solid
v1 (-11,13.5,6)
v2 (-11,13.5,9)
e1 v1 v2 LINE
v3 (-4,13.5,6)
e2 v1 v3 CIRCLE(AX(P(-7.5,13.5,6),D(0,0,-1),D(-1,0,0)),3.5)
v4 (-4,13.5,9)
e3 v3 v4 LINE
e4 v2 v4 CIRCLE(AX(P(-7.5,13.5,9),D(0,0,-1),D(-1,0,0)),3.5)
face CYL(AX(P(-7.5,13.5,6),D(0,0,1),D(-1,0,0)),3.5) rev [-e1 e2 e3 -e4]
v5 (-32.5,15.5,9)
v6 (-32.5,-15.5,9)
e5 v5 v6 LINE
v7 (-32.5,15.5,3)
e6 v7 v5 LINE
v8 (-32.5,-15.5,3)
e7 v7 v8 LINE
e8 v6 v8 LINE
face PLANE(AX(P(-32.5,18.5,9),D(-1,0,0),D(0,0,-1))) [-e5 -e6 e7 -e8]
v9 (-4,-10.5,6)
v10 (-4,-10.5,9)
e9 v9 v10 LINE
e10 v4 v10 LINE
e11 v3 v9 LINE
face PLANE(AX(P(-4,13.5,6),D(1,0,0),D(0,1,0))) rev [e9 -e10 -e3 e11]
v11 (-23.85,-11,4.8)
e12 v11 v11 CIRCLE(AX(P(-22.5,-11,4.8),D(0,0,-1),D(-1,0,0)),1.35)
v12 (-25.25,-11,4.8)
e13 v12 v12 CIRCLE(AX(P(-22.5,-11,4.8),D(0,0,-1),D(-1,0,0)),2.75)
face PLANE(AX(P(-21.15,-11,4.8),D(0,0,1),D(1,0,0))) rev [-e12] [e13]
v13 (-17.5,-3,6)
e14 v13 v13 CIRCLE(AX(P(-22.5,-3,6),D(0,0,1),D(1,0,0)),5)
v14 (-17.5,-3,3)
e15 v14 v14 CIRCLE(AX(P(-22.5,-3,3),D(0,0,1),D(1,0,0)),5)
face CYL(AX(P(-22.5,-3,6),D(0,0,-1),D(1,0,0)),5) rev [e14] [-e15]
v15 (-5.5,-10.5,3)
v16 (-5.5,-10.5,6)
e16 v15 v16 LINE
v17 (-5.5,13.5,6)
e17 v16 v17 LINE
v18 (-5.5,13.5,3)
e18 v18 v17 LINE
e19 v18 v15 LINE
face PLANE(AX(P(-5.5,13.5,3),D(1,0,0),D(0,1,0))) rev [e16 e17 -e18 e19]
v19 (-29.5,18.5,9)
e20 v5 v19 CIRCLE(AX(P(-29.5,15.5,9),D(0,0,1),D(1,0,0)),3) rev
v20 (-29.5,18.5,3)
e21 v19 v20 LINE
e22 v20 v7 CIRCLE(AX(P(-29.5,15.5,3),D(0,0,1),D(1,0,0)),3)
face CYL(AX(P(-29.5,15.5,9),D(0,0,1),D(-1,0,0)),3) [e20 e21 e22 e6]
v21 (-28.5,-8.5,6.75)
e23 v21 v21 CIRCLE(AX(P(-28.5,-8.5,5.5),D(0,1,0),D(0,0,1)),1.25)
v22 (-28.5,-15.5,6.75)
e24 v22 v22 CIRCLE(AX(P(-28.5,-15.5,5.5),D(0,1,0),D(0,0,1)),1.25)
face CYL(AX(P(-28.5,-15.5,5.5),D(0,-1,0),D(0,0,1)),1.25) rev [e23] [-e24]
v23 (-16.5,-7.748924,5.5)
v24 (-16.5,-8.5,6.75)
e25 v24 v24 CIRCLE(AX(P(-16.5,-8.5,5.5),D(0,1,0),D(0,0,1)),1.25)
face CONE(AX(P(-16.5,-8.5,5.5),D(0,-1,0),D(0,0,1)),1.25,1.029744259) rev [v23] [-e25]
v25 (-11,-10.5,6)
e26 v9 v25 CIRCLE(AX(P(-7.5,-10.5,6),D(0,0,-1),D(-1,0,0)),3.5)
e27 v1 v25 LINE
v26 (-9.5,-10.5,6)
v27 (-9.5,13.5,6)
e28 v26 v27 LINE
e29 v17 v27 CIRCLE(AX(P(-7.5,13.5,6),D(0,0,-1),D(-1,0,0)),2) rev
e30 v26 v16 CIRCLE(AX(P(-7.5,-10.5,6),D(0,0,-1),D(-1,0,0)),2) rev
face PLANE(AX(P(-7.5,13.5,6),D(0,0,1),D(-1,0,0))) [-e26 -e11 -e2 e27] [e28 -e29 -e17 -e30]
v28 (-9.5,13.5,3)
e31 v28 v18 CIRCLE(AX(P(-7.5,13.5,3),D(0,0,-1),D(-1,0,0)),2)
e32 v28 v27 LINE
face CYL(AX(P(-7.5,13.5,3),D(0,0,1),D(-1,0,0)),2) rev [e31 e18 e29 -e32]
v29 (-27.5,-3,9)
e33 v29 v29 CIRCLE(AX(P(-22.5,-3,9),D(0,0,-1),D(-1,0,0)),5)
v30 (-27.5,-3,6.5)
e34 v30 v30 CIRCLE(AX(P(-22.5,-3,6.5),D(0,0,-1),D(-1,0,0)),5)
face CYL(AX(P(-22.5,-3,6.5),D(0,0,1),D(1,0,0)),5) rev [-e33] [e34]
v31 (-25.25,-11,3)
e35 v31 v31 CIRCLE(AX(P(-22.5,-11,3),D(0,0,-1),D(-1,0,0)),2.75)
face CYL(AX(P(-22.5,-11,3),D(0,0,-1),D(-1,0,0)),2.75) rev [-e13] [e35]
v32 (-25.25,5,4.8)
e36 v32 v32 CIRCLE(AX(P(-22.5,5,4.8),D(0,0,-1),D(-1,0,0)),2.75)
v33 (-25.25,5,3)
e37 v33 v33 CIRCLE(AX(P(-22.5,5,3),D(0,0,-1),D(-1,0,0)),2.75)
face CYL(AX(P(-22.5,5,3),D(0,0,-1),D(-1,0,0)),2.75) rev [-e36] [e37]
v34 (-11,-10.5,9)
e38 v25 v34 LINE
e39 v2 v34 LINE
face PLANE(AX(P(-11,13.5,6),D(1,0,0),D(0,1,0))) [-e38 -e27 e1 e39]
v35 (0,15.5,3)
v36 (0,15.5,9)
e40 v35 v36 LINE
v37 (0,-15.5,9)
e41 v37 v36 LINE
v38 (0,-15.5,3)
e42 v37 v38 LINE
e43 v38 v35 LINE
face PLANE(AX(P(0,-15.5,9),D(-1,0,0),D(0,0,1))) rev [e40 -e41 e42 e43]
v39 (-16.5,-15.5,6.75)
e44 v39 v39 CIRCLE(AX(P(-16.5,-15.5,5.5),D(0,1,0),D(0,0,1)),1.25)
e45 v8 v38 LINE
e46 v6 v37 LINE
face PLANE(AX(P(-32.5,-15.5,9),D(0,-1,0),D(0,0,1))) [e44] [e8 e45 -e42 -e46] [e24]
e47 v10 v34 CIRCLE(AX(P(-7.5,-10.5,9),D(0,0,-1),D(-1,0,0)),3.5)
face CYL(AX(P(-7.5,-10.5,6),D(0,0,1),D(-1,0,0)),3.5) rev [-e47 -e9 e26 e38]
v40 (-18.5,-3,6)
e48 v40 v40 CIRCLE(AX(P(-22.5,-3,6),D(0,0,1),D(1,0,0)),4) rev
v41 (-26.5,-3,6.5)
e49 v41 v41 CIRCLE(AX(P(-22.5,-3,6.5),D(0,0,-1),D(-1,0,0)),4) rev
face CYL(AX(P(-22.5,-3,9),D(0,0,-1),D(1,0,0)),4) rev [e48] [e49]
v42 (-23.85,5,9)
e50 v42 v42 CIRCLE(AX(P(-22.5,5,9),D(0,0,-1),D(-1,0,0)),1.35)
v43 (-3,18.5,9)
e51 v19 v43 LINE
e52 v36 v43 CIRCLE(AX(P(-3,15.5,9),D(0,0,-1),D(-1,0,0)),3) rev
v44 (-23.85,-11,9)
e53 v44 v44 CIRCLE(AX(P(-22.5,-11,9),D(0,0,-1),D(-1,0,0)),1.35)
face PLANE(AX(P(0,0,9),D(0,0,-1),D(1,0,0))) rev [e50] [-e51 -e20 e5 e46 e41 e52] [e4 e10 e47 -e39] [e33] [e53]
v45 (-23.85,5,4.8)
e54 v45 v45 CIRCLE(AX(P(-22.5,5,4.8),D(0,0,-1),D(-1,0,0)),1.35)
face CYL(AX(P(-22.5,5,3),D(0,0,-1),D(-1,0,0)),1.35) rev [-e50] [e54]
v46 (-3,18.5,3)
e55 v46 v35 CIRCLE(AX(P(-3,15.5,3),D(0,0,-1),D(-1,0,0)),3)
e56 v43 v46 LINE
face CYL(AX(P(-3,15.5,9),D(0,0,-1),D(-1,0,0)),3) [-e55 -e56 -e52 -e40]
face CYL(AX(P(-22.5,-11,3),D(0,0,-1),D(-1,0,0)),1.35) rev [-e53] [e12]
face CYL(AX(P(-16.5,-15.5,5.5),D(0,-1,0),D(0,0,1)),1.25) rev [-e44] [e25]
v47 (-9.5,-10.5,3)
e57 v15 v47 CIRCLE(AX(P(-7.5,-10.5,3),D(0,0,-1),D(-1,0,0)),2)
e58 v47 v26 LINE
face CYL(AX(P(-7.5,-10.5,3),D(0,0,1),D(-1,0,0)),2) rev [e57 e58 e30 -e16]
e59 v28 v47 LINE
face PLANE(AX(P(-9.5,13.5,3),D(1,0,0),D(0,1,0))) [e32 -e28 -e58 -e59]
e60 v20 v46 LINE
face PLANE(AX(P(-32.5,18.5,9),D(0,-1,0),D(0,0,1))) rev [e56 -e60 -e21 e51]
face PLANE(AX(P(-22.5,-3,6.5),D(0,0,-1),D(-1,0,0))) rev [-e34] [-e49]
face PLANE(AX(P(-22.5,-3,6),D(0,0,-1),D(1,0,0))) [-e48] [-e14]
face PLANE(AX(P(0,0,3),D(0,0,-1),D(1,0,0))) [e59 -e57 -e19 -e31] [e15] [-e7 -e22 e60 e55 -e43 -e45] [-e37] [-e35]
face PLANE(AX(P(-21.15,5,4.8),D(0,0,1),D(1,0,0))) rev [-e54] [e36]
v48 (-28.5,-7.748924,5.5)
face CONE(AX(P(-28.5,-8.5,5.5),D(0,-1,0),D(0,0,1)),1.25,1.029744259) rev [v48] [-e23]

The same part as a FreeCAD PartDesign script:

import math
import FreeCAD as App
import Part
import Sketcher
Q = App.Units.Quantity


def edges_at(feature, points):
    """Names of the edges that pass closest to the given points."""
    edges = feature.Shape.Edges
    near = lambda p: min(range(len(edges)), key=lambda i: edges[i].distToShape(Part.Vertex(*p))[0])
    return sorted({f"Edge{near(p) + 1}" for p in points})


def add_polygon(sketch, points):
    """Adds a closed chain of lines whose ends are joined by coincident constraints."""
    first, n = sketch.GeometryCount, len(points)
    for a, b in zip(points, points[1:] + points[:1]):
        sketch.addGeometry(Part.LineSegment(App.Vector(*a, 0), App.Vector(*b, 0)), False)
    for i in range(n):
        sketch.addConstraint(Sketcher.Constraint("Coincident", first + i, 2, first + (i + 1) % n, 1))

doc = App.newDocument("Part")
body = doc.addObject("PartDesign::Body", "Body")

# Sketch on XY plane
sketch1 = doc.addObject("Sketcher::SketchObject", "Sketch")
body.addObject(sketch1)
sketch1.AttachmentSupport = (doc.XY_Plane, [""])
sketch1.MapMode = "FlatFace"
add_polygon(sketch1, [(-32.5, 18.5), (-32.5, -15.5), (32.5, -15.5), (32.5, 18.5)])  # lines 0-3
sketch1.addGeometry(Part.Circle(App.Vector(-22.5, -3, 0), App.Vector(0, 0, 1), 4), False)  # 4
sketch1.addGeometry(Part.Circle(App.Vector(20.5, 0, 0), App.Vector(0, 0, 1), 9), False)  # 5
sketch1.addConstraint([
    Sketcher.Constraint("Vertical", 0),
    Sketcher.Constraint("Horizontal", 1),
    Sketcher.Constraint("Vertical", 2),
    Sketcher.Constraint("Horizontal", 3),
    Sketcher.Constraint("PointOnObject", 5, 3, -1),
    Sketcher.Constraint("Diameter", 4, Q("8 mm")),
    Sketcher.Constraint("Diameter", 5, Q("18 mm")),
    Sketcher.Constraint("DistanceX", 1, 1, 1, 2, Q("65 mm")),
    Sketcher.Constraint("DistanceY", 0, 2, 0, 1, Q("34 mm")),
    Sketcher.Constraint("DistanceY", 4, 3, -1, 1, Q("3 mm")),
    Sketcher.Constraint("DistanceX", 4, 3, 5, 3, Q("43 mm")),
    Sketcher.Constraint("DistanceX", 0, 2, 4, 3, Q("10 mm")),
    Sketcher.Constraint("DistanceX", 4, 3, -1, 1, Q("22.5 mm")),
    Sketcher.Constraint("DistanceY", 0, 2, -1, 1, Q("15.5 mm")),
])
pad1 = doc.addObject("PartDesign::Pad", "Pad")
body.addObject(pad1)
pad1.Profile = sketch1
pad1.Length = 6
pad1.Midplane = True

# Sketch on XY plane
sketch2 = doc.addObject("Sketcher::SketchObject", "Sketch001")
body.addObject(sketch2)
sketch2.AttachmentSupport = (doc.XY_Plane, [""])
sketch2.MapMode = "FlatFace"
sketch2.AttachmentOffset = App.Placement(App.Vector(0, 0, 3), App.Rotation())
sketch2.addGeometry(Part.Circle(App.Vector(20, 0, 0), App.Vector(0, 0, 1), 10), False)
sketch2.addConstraint([
    Sketcher.Constraint("PointOnObject", 0, 3, -1),
    Sketcher.Constraint("Diameter", 0, Q("21 mm")),
    Sketcher.Constraint("DistanceX", -1, 1, 0, 3, Q("20.5 mm")),
])
pocket1 = doc.addObject("PartDesign::Pocket", "Pocket")
body.addObject(pocket1)
pocket1.Profile = sketch2
pocket1.Length = 5

# Sketch on XY plane
sketch3 = doc.addObject("Sketcher::SketchObject", "Sketch002")
body.addObject(sketch3)
sketch3.AttachmentSupport = (doc.XY_Plane, [""])
sketch3.MapMode = "FlatFace"
sketch3.AttachmentOffset = App.Placement(App.Vector(0, 0, 3), App.Rotation())
sketch3.addGeometry(Part.Circle(App.Vector(-22, -3, 0), App.Vector(0, 0, 1), 5), False)
sketch3.addConstraint([
    Sketcher.Constraint("Diameter", 0, Q("10 mm")),
    Sketcher.Constraint("DistanceY", 0, 3, -1, 1, Q("3 mm")),
    Sketcher.Constraint("DistanceX", 0, 3, -1, 1, Q("22.5 mm")),
])
pocket2 = doc.addObject("PartDesign::Pocket", "Pocket001")
body.addObject(pocket2)
pocket2.Profile = sketch3
pocket2.Length = 3

# Sketch on XY plane
sketch4 = doc.addObject("Sketcher::SketchObject", "Sketch003")
body.addObject(sketch4)
sketch4.AttachmentSupport = (doc.XY_Plane, [""])
sketch4.MapMode = "FlatFace"
sketch4.AttachmentOffset = App.Placement(App.Vector(0, 0, -3), App.Rotation())
sketch4.addGeometry([
    Part.LineSegment(App.Vector(-9.5, -10.5, 0), App.Vector(-9.5, 13.5, 0)),
    Part.ArcOfCircle(Part.Circle(App.Vector(-7.5, 13.5, 0), App.Vector(0, 0, 1), 2), math.radians(0), math.radians(180)),
    Part.LineSegment(App.Vector(-5.5, 13.5, 0), App.Vector(-5.5, -10.5, 0)),
    Part.ArcOfCircle(Part.Circle(App.Vector(-7.5, -10.5, 0), App.Vector(0, 0, 1), 2), math.radians(180), math.radians(360)),
], False)
sketch4.addConstraint([
    Sketcher.Constraint("Tangent", 0, 2, 1, 2),
    Sketcher.Constraint("Tangent", 1, 1, 2, 1),
    Sketcher.Constraint("Tangent", 2, 2, 3, 2),
    Sketcher.Constraint("Tangent", 3, 1, 0, 1),
    Sketcher.Constraint("Vertical", 0),
    Sketcher.Constraint("Vertical", 2),
    Sketcher.Constraint("Radius", 1, Q("2 mm")),
    Sketcher.Constraint("DistanceY", 0, 1, 0, 2, Q("24 mm")),
    Sketcher.Constraint("DistanceX", 1, 3, -1, 1, Q("7.5 mm")),
    Sketcher.Constraint("DistanceY", -1, 1, 1, 3, Q("13.5 mm")),
])
pocket3 = doc.addObject("PartDesign::Pocket", "Pocket002")
body.addObject(pocket3)
pocket3.Profile = sketch4
pocket3.Type = "ThroughAll"
pocket3.Reversed = True

# Sketch on XY plane
sketch5 = doc.addObject("Sketcher::SketchObject", "Sketch004")
body.addObject(sketch5)
sketch5.AttachmentSupport = (doc.XY_Plane, [""])
sketch5.MapMode = "FlatFace"
sketch5.AttachmentOffset = App.Placement(App.Vector(0, 0, -3), App.Rotation())
sketch5.addGeometry([
    Part.LineSegment(App.Vector(-11, -10.5, 0), App.Vector(-11, 13.5, 0)),
    Part.ArcOfCircle(Part.Circle(App.Vector(-7.5, 13.5, 0), App.Vector(0, 0, 1), 3.5), math.radians(0), math.radians(180)),
    Part.LineSegment(App.Vector(-4, 13.5, 0), App.Vector(-4, -10.5, 0)),
    Part.ArcOfCircle(Part.Circle(App.Vector(-7.5, -10.5, 0), App.Vector(0, 0, 1), 3.5), math.radians(180), math.radians(360)),
], False)
sketch5.addConstraint([
    Sketcher.Constraint("Tangent", 0, 2, 1, 2),
    Sketcher.Constraint("Tangent", 1, 1, 2, 1),
    Sketcher.Constraint("Tangent", 2, 2, 3, 2),
    Sketcher.Constraint("Tangent", 3, 1, 0, 1),
    Sketcher.Constraint("Vertical", 0),
    Sketcher.Constraint("Vertical", 2),
    Sketcher.Constraint("Radius", 1, Q("3.5 mm")),
    Sketcher.Constraint("DistanceY", 0, 1, 0, 2, Q("24 mm")),
    Sketcher.Constraint("DistanceX", 0, 2, -1, 1, Q("11 mm")),
    Sketcher.Constraint("DistanceY", -1, 1, 1, 3, Q("13.5 mm")),
])
pocket4 = doc.addObject("PartDesign::Pocket", "Pocket003")
body.addObject(pocket4)
pocket4.Profile = sketch5
pocket4.Length = 3
pocket4.Reversed = True
doc.recompute()

fillet = doc.addObject("PartDesign::Fillet", "Fillet")
body.addObject(fillet)
fillet.Base = (pocket4, edges_at(pocket4, [(-32.5, 18.5, 0), (32.5, 18.5, 0)]))
fillet.Radius = 3

# Sketch on XZ plane
sketch6 = doc.addObject("Sketcher::SketchObject", "Sketch005")
body.addObject(sketch6)
sketch6.AttachmentSupport = (doc.XZ_Plane, [""])
sketch6.MapMode = "FlatFace"
sketch6.AttachmentOffset = App.Placement(App.Vector(0, 0, 15.5), App.Rotation())
sketch6.addGeometry([
    Part.Circle(App.Vector(26.5, 0.5, 0), App.Vector(0, 0, 1), 1.2),
    Part.Circle(App.Vector(-28.5, 0.5, 0), App.Vector(0, 0, 1), 1.2),
    Part.Circle(App.Vector(14.5, 0.5, 0), App.Vector(0, 0, 1), 1.2),
    Part.Circle(App.Vector(-16.5, 0.5, 0), App.Vector(0, 0, 1), 1.2),
], False)
sketch6.addConstraint([
    Sketcher.Constraint("Equal", 0, 1),
    Sketcher.Constraint("Equal", 1, 2),
    Sketcher.Constraint("Equal", 2, 3),
    Sketcher.Constraint("Horizontal", 0, 3, 1, 3),
    Sketcher.Constraint("Horizontal", 1, 3, 2, 3),
    Sketcher.Constraint("Horizontal", 2, 3, 3, 3),
    Sketcher.Constraint("Diameter", 0, Q("2.5 mm")),
    Sketcher.Constraint("DistanceX", 1, 3, 0, 3, Q("55 mm")),
    Sketcher.Constraint("DistanceX", 2, 3, 0, 3, Q("12 mm")),
    Sketcher.Constraint("DistanceX", 1, 3, 3, 3, Q("12 mm")),
    Sketcher.Constraint("DistanceX", -1, 1, 0, 3, Q("26.5 mm")),
    Sketcher.Constraint("DistanceY", -1, 1, 0, 3, Q("0.5 mm")),
])
doc.recompute()
hole = doc.addObject("PartDesign::Hole", "Hole")
body.addObject(hole)
hole.Profile = sketch6
hole.ThreadType = "None"
hole.Diameter = 2.5
hole.DepthType = "Dimension"
hole.Depth = 7
hole.DrillPoint = "Angled"
hole.DrillPointAngle = 118

# Sketch on XZ plane
sketch7 = doc.addObject("Sketcher::SketchObject", "Sketch006")
body.addObject(sketch7)
sketch7.AttachmentSupport = (doc.XZ_Plane, [""])
sketch7.MapMode = "FlatFace"
sketch7.AttachmentOffset = App.Placement(App.Vector(0, 0, -18.5), App.Rotation())
sketch7.addGeometry(Part.Circle(App.Vector(20.5, 0, 0), App.Vector(0, 0, 1), 1.2), False)
sketch7.addConstraint([
    Sketcher.Constraint("PointOnObject", 0, 3, -1),
    Sketcher.Constraint("Diameter", 0, Q("2.5 mm")),
    Sketcher.Constraint("DistanceX", -1, 1, 0, 3, Q("20.5 mm")),
])
doc.recompute()
hole2 = doc.addObject("PartDesign::Hole", "Hole001")
body.addObject(hole2)
hole2.Profile = sketch7
hole2.ThreadType = "None"
hole2.Diameter = 2.5
hole2.DepthType = "Dimension"
hole2.Depth = 7.5
hole2.DrillPoint = "Angled"
hole2.DrillPointAngle = 118
hole2.Reversed = True
body2 = doc.addObject("PartDesign::Body", "Body001")
doc.recompute()

mirroring = doc.addObject("Part::Mirroring", "Mirroring")
mirroring.Source = body
mirroring.Base = App.Vector(0, 0, 3)
mirroring.Normal = App.Vector(0, 0, 1)
body2.BaseFeature = mirroring
doc.recompute()

# Sketch on XY plane
sketch8 = doc.addObject("Sketcher::SketchObject", "Sketch007")
body2.addObject(sketch8)
sketch8.AttachmentSupport = (doc.getObject("XY_Plane001"), [""])
sketch8.MapMode = "FlatFace"
sketch8.AttachmentOffset = App.Placement(App.Vector(0, 0, 3), App.Rotation())
add_polygon(sketch8, [(41, 27), (41, -24), (-41, -24), (-41, 27)])  # lines 0-3
add_polygon(sketch8, [(-32, -16), (0, -16), (0, 18), (-32, 18)])  # lines 4-7
sketch8.addConstraint([
    Sketcher.Constraint("Vertical", 0),
    Sketcher.Constraint("Horizontal", 1),
    Sketcher.Constraint("Vertical", 2),
    Sketcher.Constraint("Horizontal", 3),
    Sketcher.Constraint("Horizontal", 4),
    Sketcher.Constraint("Vertical", 5),
    Sketcher.Constraint("Horizontal", 6),
    Sketcher.Constraint("Vertical", 7),
    Sketcher.Constraint("PointOnObject", 4, 2, -2),
    Sketcher.Constraint("DistanceY", 5, 1, 5, 2, Q("34 mm")),
    Sketcher.Constraint("DistanceX", 4, 1, 4, 2, Q("32.5 mm")),
    Sketcher.Constraint("DistanceX", 1, 2, 1, 1, Q("81.72 mm")),
    Sketcher.Constraint("DistanceY", 0, 2, 0, 1, Q("50.72 mm")),
    Sketcher.Constraint("DistanceY", 4, 2, -1, 1, Q("15.5 mm")),
    Sketcher.Constraint("DistanceX", -1, 1, 0, 2, Q("40.86 mm")),
    Sketcher.Constraint("DistanceY", 0, 2, -1, 1, Q("23.86 mm")),
])
pocket5 = doc.addObject("PartDesign::Pocket", "Pocket004")
body2.addObject(pocket5)
pocket5.Profile = sketch8
pocket5.Type = "ThroughAll"
pocket5.Reversed = True
doc.recompute()

fillet2 = doc.addObject("PartDesign::Fillet", "Fillet001")
body2.addObject(fillet2)
fillet2.Base = (pocket5, edges_at(pocket5, [(0, 18.5, 6)]))
fillet2.Radius = 3

# Sketch on XY plane
sketch9 = doc.addObject("Sketcher::SketchObject", "Sketch008")
body2.addObject(sketch9)
sketch9.AttachmentSupport = (doc.getObject("XY_Plane001"), [""])
sketch9.MapMode = "FlatFace"
sketch9.AttachmentOffset = App.Placement(App.Vector(0, 0, 9), App.Rotation())
sketch9.addGeometry(Part.Circle(App.Vector(-22, -3, 0), App.Vector(0, 0, 1), 5), False)
sketch9.addConstraint([
    Sketcher.Constraint("Diameter", 0, Q("10 mm")),
    Sketcher.Constraint("DistanceY", 0, 3, -1, 1, Q("3 mm")),
    Sketcher.Constraint("DistanceX", 0, 3, -1, 1, Q("22.5 mm")),
])
pocket6 = doc.addObject("PartDesign::Pocket", "Pocket005")
body2.addObject(pocket6)
pocket6.Profile = sketch9
pocket6.Length = 2.5

# Sketch on XY plane
sketch10 = doc.addObject("Sketcher::SketchObject", "Sketch009")
body2.addObject(sketch10)
sketch10.AttachmentSupport = (doc.getObject("XY_Plane001"), [""])
sketch10.MapMode = "FlatFace"
sketch10.AttachmentOffset = App.Placement(App.Vector(0, 0, 3), App.Rotation())
sketch10.addGeometry([
    Part.Circle(App.Vector(-22.5, 5, 0), App.Vector(0, 0, 1), 1.4),
    Part.Circle(App.Vector(-22.5, -11, 0), App.Vector(0, 0, 1), 1.4),
], False)
sketch10.addConstraint([
    Sketcher.Constraint("Equal", 0, 1),
    Sketcher.Constraint("Vertical", 0, 3, 1, 3),
    Sketcher.Constraint("Diameter", 0, Q("2.7 mm")),
    Sketcher.Constraint("DistanceY", -1, 1, 0, 3, Q("5 mm")),
    Sketcher.Constraint("DistanceY", 1, 3, -1, 1, Q("11 mm")),
    Sketcher.Constraint("DistanceX", 0, 3, -1, 1, Q("22.5 mm")),
])
doc.recompute()
hole3 = doc.addObject("PartDesign::Hole", "Hole002")
body2.addObject(hole3)
hole3.Profile = sketch10
hole3.ThreadType = "None"
hole3.Diameter = 2.7
hole3.DepthType = "ThroughAll"
hole3.HoleCutType = "Counterbore"
hole3.HoleCutDiameter = 5.5
hole3.HoleCutDepth = 1.8
hole3.Reversed = True
body.Visibility = False
mirroring.Visibility = False

doc.recompute()
